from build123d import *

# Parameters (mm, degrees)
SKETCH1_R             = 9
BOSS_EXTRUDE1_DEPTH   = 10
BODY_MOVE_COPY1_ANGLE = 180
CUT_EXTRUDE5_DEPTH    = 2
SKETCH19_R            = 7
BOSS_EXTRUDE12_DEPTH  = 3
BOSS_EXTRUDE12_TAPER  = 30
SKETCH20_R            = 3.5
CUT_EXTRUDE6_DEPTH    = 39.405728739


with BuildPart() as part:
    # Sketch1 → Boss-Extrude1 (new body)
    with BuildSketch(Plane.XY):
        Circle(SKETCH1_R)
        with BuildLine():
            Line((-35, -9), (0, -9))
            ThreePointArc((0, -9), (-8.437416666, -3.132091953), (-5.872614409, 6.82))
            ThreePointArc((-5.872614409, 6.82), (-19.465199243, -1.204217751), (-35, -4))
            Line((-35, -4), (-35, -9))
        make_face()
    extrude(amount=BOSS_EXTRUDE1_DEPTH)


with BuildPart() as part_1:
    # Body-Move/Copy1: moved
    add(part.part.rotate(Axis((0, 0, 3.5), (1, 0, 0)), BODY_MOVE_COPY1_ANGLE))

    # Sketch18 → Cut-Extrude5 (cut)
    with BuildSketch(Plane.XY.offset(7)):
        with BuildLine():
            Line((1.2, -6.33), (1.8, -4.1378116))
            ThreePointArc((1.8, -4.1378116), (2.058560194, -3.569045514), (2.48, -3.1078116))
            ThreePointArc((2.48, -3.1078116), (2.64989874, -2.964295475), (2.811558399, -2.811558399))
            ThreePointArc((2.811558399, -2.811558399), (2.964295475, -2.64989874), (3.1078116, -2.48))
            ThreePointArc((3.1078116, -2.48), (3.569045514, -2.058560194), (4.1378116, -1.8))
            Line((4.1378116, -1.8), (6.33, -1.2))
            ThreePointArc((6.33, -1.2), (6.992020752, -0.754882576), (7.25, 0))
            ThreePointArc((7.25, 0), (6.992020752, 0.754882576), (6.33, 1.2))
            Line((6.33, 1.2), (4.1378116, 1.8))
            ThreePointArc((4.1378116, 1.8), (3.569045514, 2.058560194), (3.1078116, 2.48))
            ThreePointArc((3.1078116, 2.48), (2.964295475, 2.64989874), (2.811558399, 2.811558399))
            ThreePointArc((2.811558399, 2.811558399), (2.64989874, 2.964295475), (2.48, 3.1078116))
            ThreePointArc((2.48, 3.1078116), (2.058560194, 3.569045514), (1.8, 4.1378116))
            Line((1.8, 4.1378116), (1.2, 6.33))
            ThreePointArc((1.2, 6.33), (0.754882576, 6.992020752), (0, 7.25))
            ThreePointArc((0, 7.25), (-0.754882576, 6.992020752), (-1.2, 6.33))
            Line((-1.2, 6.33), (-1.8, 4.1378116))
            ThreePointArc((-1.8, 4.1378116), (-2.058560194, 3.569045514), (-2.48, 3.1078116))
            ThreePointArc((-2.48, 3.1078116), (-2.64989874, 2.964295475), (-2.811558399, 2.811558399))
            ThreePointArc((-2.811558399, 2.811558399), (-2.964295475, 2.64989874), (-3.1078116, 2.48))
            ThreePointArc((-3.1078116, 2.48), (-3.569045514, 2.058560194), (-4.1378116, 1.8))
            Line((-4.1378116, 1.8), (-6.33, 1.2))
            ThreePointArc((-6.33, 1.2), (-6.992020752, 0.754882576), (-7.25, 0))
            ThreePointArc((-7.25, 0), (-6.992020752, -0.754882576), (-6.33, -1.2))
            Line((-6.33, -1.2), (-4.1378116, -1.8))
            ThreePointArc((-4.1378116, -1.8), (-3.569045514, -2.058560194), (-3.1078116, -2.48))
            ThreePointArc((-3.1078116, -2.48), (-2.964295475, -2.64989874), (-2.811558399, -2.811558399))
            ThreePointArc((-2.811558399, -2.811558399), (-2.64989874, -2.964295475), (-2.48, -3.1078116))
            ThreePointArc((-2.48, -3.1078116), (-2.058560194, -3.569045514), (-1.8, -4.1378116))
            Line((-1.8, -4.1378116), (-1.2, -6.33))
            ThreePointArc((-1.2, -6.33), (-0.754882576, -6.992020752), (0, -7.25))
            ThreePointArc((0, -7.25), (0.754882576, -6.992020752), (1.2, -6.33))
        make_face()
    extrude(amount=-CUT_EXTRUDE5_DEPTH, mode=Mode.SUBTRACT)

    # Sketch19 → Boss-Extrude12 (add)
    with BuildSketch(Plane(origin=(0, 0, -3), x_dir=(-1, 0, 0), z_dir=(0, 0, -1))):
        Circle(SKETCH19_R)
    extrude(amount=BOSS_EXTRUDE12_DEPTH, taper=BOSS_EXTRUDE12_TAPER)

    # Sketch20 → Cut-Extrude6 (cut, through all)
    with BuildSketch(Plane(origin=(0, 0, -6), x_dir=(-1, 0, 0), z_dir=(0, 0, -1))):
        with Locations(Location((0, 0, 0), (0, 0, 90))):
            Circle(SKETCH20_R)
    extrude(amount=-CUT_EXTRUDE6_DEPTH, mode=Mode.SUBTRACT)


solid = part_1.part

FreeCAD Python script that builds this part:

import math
import FreeCAD as App
import Part
import Sketcher

V = App.Vector
Q = App.Units.Quantity

doc = App.newDocument("Part")
body = doc.addObject("PartDesign::Body", "Body")

# Sketch on XY plane
sketch1 = doc.addObject("Sketcher::SketchObject", "Sketch")
body.addObject(sketch1)
sketch1.AttachmentSupport = (doc.XY_Plane, [""])
sketch1.MapMode = "FlatFace"
sketch1.addGeometry(Part.ArcOfCircle(Part.Circle(V(-35, 41, 0), V(0, 0, 1), 45), math.radians(-90), math.radians(-49)), False)
sketch1.addGeometry(Part.LineSegment(V(-35, -4, 0), V(-35, -9, 0)), False)
sketch1.addGeometry(Part.LineSegment(V(-35, -9, 0), V(0, -9, 0)), False)
sketch1.addGeometry(Part.ArcOfCircle(Part.Circle(V(0, 0, 0), V(0, 0, 1), 9), math.radians(-90), math.radians(131)), False)
sketch1.addConstraint(Sketcher.Constraint("Coincident", 0, 1, 1, 1))
sketch1.addConstraint(Sketcher.Constraint("Coincident", 1, 2, 2, 1))
sketch1.addConstraint(Sketcher.Constraint("Tangent", 2, 2, 3, 1))
sketch1.addConstraint(Sketcher.Constraint("Tangent", 3, 2, 0, 2))
sketch1.addConstraint(Sketcher.Constraint("Vertical", 1))
sketch1.addConstraint(Sketcher.Constraint("Horizontal", 2))
sketch1.addConstraint(Sketcher.Constraint("Coincident", 3, 3, -1, 1))
sketch1.addConstraint(Sketcher.Constraint("Radius", 3, Q("9 mm")))
sketch1.addConstraint(Sketcher.Constraint("DistanceX", 2, 1, 2, 2, Q("35 mm")))
sketch1.addConstraint(Sketcher.Constraint("DistanceY", 1, 2, 1, 1, Q("5 mm")))
sketch1.addConstraint(Sketcher.Constraint("DistanceY", -1, 1, 3, 2, Q("6.82 mm")))
pad1 = doc.addObject("PartDesign::Pad", "Pad")
body.addObject(pad1)
pad1.Profile = sketch1
pad1.Length = 10
body2 = doc.addObject("PartDesign::Body", "Body001")
doc.recompute()

body.Placement = App.Placement(V(0, 0, 7), App.Rotation(V(1, 0, 0), 180))
boolean = doc.addObject("PartDesign::Boolean", "Boolean")
body2.addObject(boolean)
boolean.Type = "Fuse"
boolean.addObjects([body])

# Sketch on XY plane
sketch2 = doc.addObject("Sketcher::SketchObject", "Sketch001")
body2.addObject(sketch2)
sketch2.AttachmentSupport = (doc.getObject("XY_Plane001"), [""])
sketch2.MapMode = "FlatFace"
sketch2.AttachmentOffset = App.Placement(V(0, 0, 7), App.Rotation())
sketch2.addGeometry(Part.LineSegment(V(1.2, -6.33, 0), V(1.8, -4.137812, 0)), False)
sketch2.addGeometry(Part.ArcOfCircle(Part.Circle(V(3.72763, -4.670956, 0), V(0, 0, 1), 2), math.radians(128.595264), math.radians(164.539616)), False)
sketch2.addGeometry(Part.ArcOfCircle(Part.Circle(V(-0.01526, 0.018477, 0), V(0, 0, 1), 4.000001), math.radians(-51.404735), math.radians(-45.03258)), False)
sketch2.addGeometry(Part.ArcOfCircle(Part.Circle(V(-0.018477, 0.01526, 0), V(0, 0, 1), 4.000001), math.radians(-44.96742), math.radians(-38.595265)), False)
sketch2.addGeometry(Part.ArcOfCircle(Part.Circle(V(4.670956, -3.72763, 0), V(0, 0, 1), 2), math.radians(105.460384), math.radians(141.404736)), False)
sketch2.addGeometry(Part.LineSegment(V(4.137812, -1.8, 0), V(6.33, -1.2, 0)), False)
sketch2.addGeometry(Part.ArcOfCircle(Part.Circle(V(6.000013, 0.005657, 0), V(0, 0, 1), 1.25), math.radians(-74.693067), math.radians(-0.259292)), False)
sketch2.addGeometry(Part.ArcOfCircle(Part.Circle(V(6.000013, -0.005657, 0), V(0, 0, 1), 1.25), math.radians(0.259292), math.radians(74.693067)), False)
sketch2.addGeometry(Part.LineSegment(V(6.33, 1.2, 0), V(4.137812, 1.8, 0)), False)
sketch2.addGeometry(Part.ArcOfCircle(Part.Circle(V(4.670956, 3.72763, 0), V(0, 0, 1), 2), math.radians(-141.404736), math.radians(-105.460384)), False)
sketch2.addGeometry(Part.ArcOfCircle(Part.Circle(V(-0.018477, -0.01526, 0), V(0, 0, 1), 4.000001), math.radians(38.595265), math.radians(44.96742)), False)
sketch2.addGeometry(Part.ArcOfCircle(Part.Circle(V(-0.01526, -0.018477, 0), V(0, 0, 1), 4.000001), math.radians(45.03258), math.radians(51.404735)), False)
sketch2.addGeometry(Part.ArcOfCircle(Part.Circle(V(3.72763, 4.670956, 0), V(0, 0, 1), 2), math.radians(-164.539616), math.radians(-128.595264)), False)
sketch2.addGeometry(Part.LineSegment(V(1.8, 4.137812, 0), V(1.2, 6.33, 0)), False)
sketch2.addGeometry(Part.ArcOfCircle(Part.Circle(V(-0.005657, 6.000013, 0), V(0, 0, 1), 1.25), math.radians(15.306933), math.radians(89.740708)), False)
sketch2.addGeometry(Part.ArcOfCircle(Part.Circle(V(0.005657, 6.000013, 0), V(0, 0, 1), 1.25), math.radians(90.259292), math.radians(164.693067)), False)
sketch2.addGeometry(Part.LineSegment(V(-1.2, 6.33, 0), V(-1.8, 4.137812, 0)), False)
sketch2.addGeometry(Part.ArcOfCircle(Part.Circle(V(-3.72763, 4.670956, 0), V(0, 0, 1), 2), math.radians(-51.404736), math.radians(-15.460384)), False)
sketch2.addGeometry(Part.ArcOfCircle(Part.Circle(V(0.01526, -0.018477, 0), V(0, 0, 1), 4.000001), math.radians(128.595265), math.radians(134.96742)), False)
sketch2.addGeometry(Part.ArcOfCircle(Part.Circle(V(0.018477, -0.01526, 0), V(0, 0, 1), 4.000001), math.radians(135.03258), math.radians(141.404735)), False)
sketch2.addGeometry(Part.ArcOfCircle(Part.Circle(V(-4.670956, 3.72763, 0), V(0, 0, 1), 2), math.radians(-74.539616), math.radians(-38.595264)), False)
sketch2.addGeometry(Part.LineSegment(V(-4.137812, 1.8, 0), V(-6.33, 1.2, 0)), False)
sketch2.addGeometry(Part.ArcOfCircle(Part.Circle(V(-6.000013, -0.005657, 0), V(0, 0, 1), 1.25), math.radians(105.306933), math.radians(179.740708)), False)
sketch2.addGeometry(Part.ArcOfCircle(Part.Circle(V(-6.000013, 0.005657, 0), V(0, 0, 1), 1.25), math.radians(-179.740708), math.radians(-105.306933)), False)
sketch2.addGeometry(Part.LineSegment(V(-6.33, -1.2, 0), V(-4.137812, -1.8, 0)), False)
sketch2.addGeometry(Part.ArcOfCircle(Part.Circle(V(-4.670956, -3.72763, 0), V(0, 0, 1), 2), math.radians(38.595264), math.radians(74.539616)), False)
sketch2.addGeometry(Part.ArcOfCircle(Part.Circle(V(0.018477, 0.01526, 0), V(0, 0, 1), 4.000001), math.radians(-141.404735), math.radians(-135.03258)), False)
sketch2.addGeometry(Part.ArcOfCircle(Part.Circle(V(0.01526, 0.018477, 0), V(0, 0, 1), 4.000001), math.radians(-134.96742), math.radians(-128.595265)), False)
sketch2.addGeometry(Part.ArcOfCircle(Part.Circle(V(-3.72763, -4.670956, 0), V(0, 0, 1), 2), math.radians(15.460384), math.radians(51.404736)), False)
sketch2.addGeometry(Part.LineSegment(V(-1.8, -4.137812, 0), V(-1.2, -6.33, 0)), False)
sketch2.addGeometry(Part.ArcOfCircle(Part.Circle(V(0.005657, -6.000013, 0), V(0, 0, 1), 1.25), math.radians(-164.693067), math.radians(-90.259292)), False)
sketch2.addGeometry(Part.ArcOfCircle(Part.Circle(V(-0.005657, -6.000013, 0), V(0, 0, 1), 1.25), math.radians(-89.740708), math.radians(-15.306933)), False)
sketch2.addConstraint(Sketcher.Constraint("Coincident", 0, 2, 1, 2))
sketch2.addConstraint(Sketcher.Constraint("Tangent", 1, 1, 2, 1))
sketch2.addConstraint(Sketcher.Constraint("Coincident", 2, 2, 3, 1))
sketch2.addConstraint(Sketcher.Constraint("Tangent", 3, 2, 4, 2))
sketch2.addConstraint(Sketcher.Constraint("Coincident", 4, 1, 5, 1))
sketch2.addConstraint(Sketcher.Constraint("Tangent", 5, 2, 6, 1))
sketch2.addConstraint(Sketcher.Constraint("Coincident", 6, 2, 7, 1))
sketch2.addConstraint(Sketcher.Constraint("Tangent", 7, 2, 8, 1))
sketch2.addConstraint(Sketcher.Constraint("Coincident", 8, 2, 9, 2))
sketch2.addConstraint(Sketcher.Constraint("Tangent", 9, 1, 10, 1))
sketch2.addConstraint(Sketcher.Constraint("Coincident", 10, 2, 11, 1))
sketch2.addConstraint(Sketcher.Constraint("Tangent", 11, 2, 12, 2))
sketch2.addConstraint(Sketcher.Constraint("Coincident", 12, 1, 13, 1))
sketch2.addConstraint(Sketcher.Constraint("Tangent", 13, 2, 14, 1))
sketch2.addConstraint(Sketcher.Constraint("Coincident", 14, 2, 15, 1))
sketch2.addConstraint(Sketcher.Constraint("Tangent", 15, 2, 16, 1))
sketch2.addConstraint(Sketcher.Constraint("Coincident", 16, 2, 17, 2))
sketch2.addConstraint(Sketcher.Constraint("Tangent", 17, 1, 18, 1))
sketch2.addConstraint(Sketcher.Constraint("Coincident", 18, 2, 19, 1))
sketch2.addConstraint(Sketcher.Constraint("Tangent", 19, 2, 20, 2))
sketch2.addConstraint(Sketcher.Constraint("Coincident", 20, 1, 21, 1))
sketch2.addConstraint(Sketcher.Constraint("Tangent", 21, 2, 22, 1))
sketch2.addConstraint(Sketcher.Constraint("Coincident", 22, 2, 23, 1))
sketch2.addConstraint(Sketcher.Constraint("Tangent", 23, 2, 24, 1))
sketch2.addConstraint(Sketcher.Constraint("Coincident", 24, 2, 25, 2))
sketch2.addConstraint(Sketcher.Constraint("Tangent", 25, 1, 26, 1))
sketch2.addConstraint(Sketcher.Constraint("Coincident", 26, 2, 27, 1))
sketch2.addConstraint(Sketcher.Constraint("Tangent", 27, 2, 28, 2))
sketch2.addConstraint(Sketcher.Constraint("Coincident", 28, 1, 29, 1))
sketch2.addConstraint(Sketcher.Constraint("Tangent", 29, 2, 30, 1))
sketch2.addConstraint(Sketcher.Constraint("Coincident", 30, 2, 31, 1))
sketch2.addConstraint(Sketcher.Constraint("Tangent", 31, 2, 0, 1))
sketch2.addConstraint(Sketcher.Constraint("Equal", 2, 3))
sketch2.addConstraint(Sketcher.Constraint("Equal", 1, 4))
sketch2.addConstraint(Sketcher.Constraint("Equal", 6, 7))
sketch2.addConstraint(Sketcher.Constraint("Equal", 4, 9))
sketch2.addConstraint(Sketcher.Constraint("Equal", 3, 10))
sketch2.addConstraint(Sketcher.Constraint("Equal", 10, 11))
sketch2.addConstraint(Sketcher.Constraint("Equal", 9, 12))
sketch2.addConstraint(Sketcher.Constraint("Equal", 7, 14))
sketch2.addConstraint(Sketcher.Constraint("Equal", 14, 15))
sketch2.addConstraint(Sketcher.Constraint("Equal", 12, 17))
sketch2.addConstraint(Sketcher.Constraint("Equal", 11, 18))
sketch2.addConstraint(Sketcher.Constraint("Equal", 18, 19))
sketch2.addConstraint(Sketcher.Constraint("Equal", 17, 20))
sketch2.addConstraint(Sketcher.Constraint("Equal", 15, 22))
sketch2.addConstraint(Sketcher.Constraint("Equal", 22, 23))
sketch2.addConstraint(Sketcher.Constraint("Equal", 20, 25))
sketch2.addConstraint(Sketcher.Constraint("Equal", 19, 26))
sketch2.addConstraint(Sketcher.Constraint("Equal", 26, 27))
sketch2.addConstraint(Sketcher.Constraint("Equal", 25, 28))
sketch2.addConstraint(Sketcher.Constraint("Equal", 23, 30))
sketch2.addConstraint(Sketcher.Constraint("Equal", 30, 31))
sketch2.addConstraint(Sketcher.Constraint("Symmetric", 1, 3, 17, 3, -1, 1))
sketch2.addConstraint(Sketcher.Constraint("Symmetric", 3, 3, 19, 3, -1, 1))
sketch2.addConstraint(Sketcher.Constraint("Symmetric", 6, 3, 22, 3, -1, 1))
sketch2.addConstraint(Sketcher.Constraint("Symmetric", 7, 3, 23, 3, -1, 1))
sketch2.addConstraint(Sketcher.Constraint("Symmetric", 9, 3, 25, 3, -1, 1))
sketch2.addConstraint(Sketcher.Constraint("Symmetric", 11, 3, 27, 3, -1, 1))
sketch2.addConstraint(Sketcher.Constraint("Symmetric", 14, 3, 30, 3, -1, 1))
sketch2.addConstraint(Sketcher.Constraint("Symmetric", 15, 3, 31, 3, -1, 1))
sketch2.addConstraint(Sketcher.Constraint("Symmetric", 4, 1, 20, 1, -1, 1))
sketch2.addConstraint(Sketcher.Constraint("Symmetric", 12, 1, 28, 1, -1, 1))
sketch2.addConstraint(Sketcher.Constraint("Symmetric", 14, 3, 15, 3, -2))
sketch2.addConstraint(Sketcher.Constraint("Symmetric", 12, 3, 17, 3, -2))
sketch2.addConstraint(Sketcher.Constraint("Symmetric", 10, 3, 19, 3, -2))
sketch2.addConstraint(Sketcher.Constraint("Symmetric", 7, 3, 22, 3, -2))
sketch2.addConstraint(Sketcher.Constraint("Symmetric", 8, 2, 20, 1, -2))
sketch2.addConstraint(Sketcher.Constraint("Perpendicular", 0, 8))
sketch2.addConstraint(Sketcher.Constraint("Perpendicular", 16, 24))
sketch2.addConstraint(Sketcher.Constraint("Horizontal", 11, 3, 18, 3))
sketch2.addConstraint(Sketcher.Constraint("Horizontal", 3, 3, 26, 3))
sketch2.addConstraint(Sketcher.Constraint("Horizontal", 2, 3, 27, 3))
sketch2.addConstraint(Sketcher.Constraint("Horizontal", 12, 1, 16, 2))
sketch2.addConstraint(Sketcher.Constraint("Horizontal", 4, 1, 24, 2))
sketch2.addConstraint(Sketcher.Constraint("Equal", 0, 5))
sketch2.addConstraint(Sketcher.Constraint("Radius", 1, Q("2 mm")))
sketch2.addConstraint(Sketcher.Constraint("Radius", 2, Q("4.000001 mm")))
sketch2.addConstraint(Sketcher.Constraint("Radius", 6, Q("1.25 mm")))
sketch2.addConstraint(Sketcher.Constraint("DistanceX", -1, 1, 0, 2, Q("1.8 mm")))
sketch2.addConstraint(Sketcher.Constraint("DistanceY", 4, 1, -1, 1, Q("1.8 mm")))
sketch2.addConstraint(Sketcher.Constraint("DistanceY", 5, 2, -1, 1, Q("1.2 mm")))
sketch2.addConstraint(Sketcher.Constraint("DistanceX", -1, 1, 1, 1, Q("2.48 mm")))
sketch2.addConstraint(Sketcher.Constraint("DistanceY", 3, 2, -1, 1, Q("2.48 mm")))
sketch2.addConstraint(Sketcher.Constraint("DistanceX", -1, 1, 5, 2, Q("6.33 mm")))
sketch2.addConstraint(Sketcher.Constraint("DistanceX", -1, 1, 6, 2, Q("7.25 mm")))
sketch2.addConstraint(Sketcher.Constraint("DistanceY", -1, 1, 13, 2, Q("6.33 mm")))
sketch2.addConstraint(Sketcher.Constraint("DistanceY", 0, 2, 1, 1, Q("1.03 mm")))
sketch2.addConstraint(Sketcher.Constraint("DistanceY", 2, 2, 19, 3, Q("2.796298 mm")))
pocket1 = doc.addObject("PartDesign::Pocket", "Pocket")
body2.addObject(pocket1)
pocket1.Profile = sketch2
pocket1.Length = 2

# Sketch on XY plane
sketch3 = doc.addObject("Sketcher::SketchObject", "Sketch002")
body2.addObject(sketch3)
sketch3.AttachmentSupport = (doc.getObject("XY_Plane001"), [""])
sketch3.MapMode = "FlatFace"
sketch3.AttachmentOffset = App.Placement(V(0, 0, -3), App.Rotation())
sketch3.addGeometry(Part.Circle(V(0, 0, 0), V(0, 0, 1), 7), False)
sketch3.addConstraint(Sketcher.Constraint("Coincident", 0, 3, -1, 1))
sketch3.addConstraint(Sketcher.Constraint("Diameter", 0, Q("14 mm")))
pad2 = doc.addObject("PartDesign::Pad", "Pad001")
body2.addObject(pad2)
pad2.Profile = sketch3
pad2.Length = 3
pad2.Reversed = True
pad2.TaperAngle = -30

# Sketch on XY plane
sketch4 = doc.addObject("Sketcher::SketchObject", "Sketch003")
body2.addObject(sketch4)
sketch4.AttachmentSupport = (doc.getObject("XY_Plane001"), [""])
sketch4.MapMode = "FlatFace"
sketch4.AttachmentOffset = App.Placement(V(0, 0, -6), App.Rotation())
sketch4.addGeometry(Part.Circle(V(0, 0, 0), V(0, 0, 1), 3.5), False)
sketch4.addConstraint(Sketcher.Constraint("Coincident", 0, 3, -1, 1))
sketch4.addConstraint(Sketcher.Constraint("Diameter", 0, Q("7 mm")))
pocket2 = doc.addObject("PartDesign::Pocket", "Pocket001")
body2.addObject(pocket2)
pocket2.Profile = sketch4
pocket2.Type = "ThroughAll"
pocket2.Reversed = True

doc.recompute()
